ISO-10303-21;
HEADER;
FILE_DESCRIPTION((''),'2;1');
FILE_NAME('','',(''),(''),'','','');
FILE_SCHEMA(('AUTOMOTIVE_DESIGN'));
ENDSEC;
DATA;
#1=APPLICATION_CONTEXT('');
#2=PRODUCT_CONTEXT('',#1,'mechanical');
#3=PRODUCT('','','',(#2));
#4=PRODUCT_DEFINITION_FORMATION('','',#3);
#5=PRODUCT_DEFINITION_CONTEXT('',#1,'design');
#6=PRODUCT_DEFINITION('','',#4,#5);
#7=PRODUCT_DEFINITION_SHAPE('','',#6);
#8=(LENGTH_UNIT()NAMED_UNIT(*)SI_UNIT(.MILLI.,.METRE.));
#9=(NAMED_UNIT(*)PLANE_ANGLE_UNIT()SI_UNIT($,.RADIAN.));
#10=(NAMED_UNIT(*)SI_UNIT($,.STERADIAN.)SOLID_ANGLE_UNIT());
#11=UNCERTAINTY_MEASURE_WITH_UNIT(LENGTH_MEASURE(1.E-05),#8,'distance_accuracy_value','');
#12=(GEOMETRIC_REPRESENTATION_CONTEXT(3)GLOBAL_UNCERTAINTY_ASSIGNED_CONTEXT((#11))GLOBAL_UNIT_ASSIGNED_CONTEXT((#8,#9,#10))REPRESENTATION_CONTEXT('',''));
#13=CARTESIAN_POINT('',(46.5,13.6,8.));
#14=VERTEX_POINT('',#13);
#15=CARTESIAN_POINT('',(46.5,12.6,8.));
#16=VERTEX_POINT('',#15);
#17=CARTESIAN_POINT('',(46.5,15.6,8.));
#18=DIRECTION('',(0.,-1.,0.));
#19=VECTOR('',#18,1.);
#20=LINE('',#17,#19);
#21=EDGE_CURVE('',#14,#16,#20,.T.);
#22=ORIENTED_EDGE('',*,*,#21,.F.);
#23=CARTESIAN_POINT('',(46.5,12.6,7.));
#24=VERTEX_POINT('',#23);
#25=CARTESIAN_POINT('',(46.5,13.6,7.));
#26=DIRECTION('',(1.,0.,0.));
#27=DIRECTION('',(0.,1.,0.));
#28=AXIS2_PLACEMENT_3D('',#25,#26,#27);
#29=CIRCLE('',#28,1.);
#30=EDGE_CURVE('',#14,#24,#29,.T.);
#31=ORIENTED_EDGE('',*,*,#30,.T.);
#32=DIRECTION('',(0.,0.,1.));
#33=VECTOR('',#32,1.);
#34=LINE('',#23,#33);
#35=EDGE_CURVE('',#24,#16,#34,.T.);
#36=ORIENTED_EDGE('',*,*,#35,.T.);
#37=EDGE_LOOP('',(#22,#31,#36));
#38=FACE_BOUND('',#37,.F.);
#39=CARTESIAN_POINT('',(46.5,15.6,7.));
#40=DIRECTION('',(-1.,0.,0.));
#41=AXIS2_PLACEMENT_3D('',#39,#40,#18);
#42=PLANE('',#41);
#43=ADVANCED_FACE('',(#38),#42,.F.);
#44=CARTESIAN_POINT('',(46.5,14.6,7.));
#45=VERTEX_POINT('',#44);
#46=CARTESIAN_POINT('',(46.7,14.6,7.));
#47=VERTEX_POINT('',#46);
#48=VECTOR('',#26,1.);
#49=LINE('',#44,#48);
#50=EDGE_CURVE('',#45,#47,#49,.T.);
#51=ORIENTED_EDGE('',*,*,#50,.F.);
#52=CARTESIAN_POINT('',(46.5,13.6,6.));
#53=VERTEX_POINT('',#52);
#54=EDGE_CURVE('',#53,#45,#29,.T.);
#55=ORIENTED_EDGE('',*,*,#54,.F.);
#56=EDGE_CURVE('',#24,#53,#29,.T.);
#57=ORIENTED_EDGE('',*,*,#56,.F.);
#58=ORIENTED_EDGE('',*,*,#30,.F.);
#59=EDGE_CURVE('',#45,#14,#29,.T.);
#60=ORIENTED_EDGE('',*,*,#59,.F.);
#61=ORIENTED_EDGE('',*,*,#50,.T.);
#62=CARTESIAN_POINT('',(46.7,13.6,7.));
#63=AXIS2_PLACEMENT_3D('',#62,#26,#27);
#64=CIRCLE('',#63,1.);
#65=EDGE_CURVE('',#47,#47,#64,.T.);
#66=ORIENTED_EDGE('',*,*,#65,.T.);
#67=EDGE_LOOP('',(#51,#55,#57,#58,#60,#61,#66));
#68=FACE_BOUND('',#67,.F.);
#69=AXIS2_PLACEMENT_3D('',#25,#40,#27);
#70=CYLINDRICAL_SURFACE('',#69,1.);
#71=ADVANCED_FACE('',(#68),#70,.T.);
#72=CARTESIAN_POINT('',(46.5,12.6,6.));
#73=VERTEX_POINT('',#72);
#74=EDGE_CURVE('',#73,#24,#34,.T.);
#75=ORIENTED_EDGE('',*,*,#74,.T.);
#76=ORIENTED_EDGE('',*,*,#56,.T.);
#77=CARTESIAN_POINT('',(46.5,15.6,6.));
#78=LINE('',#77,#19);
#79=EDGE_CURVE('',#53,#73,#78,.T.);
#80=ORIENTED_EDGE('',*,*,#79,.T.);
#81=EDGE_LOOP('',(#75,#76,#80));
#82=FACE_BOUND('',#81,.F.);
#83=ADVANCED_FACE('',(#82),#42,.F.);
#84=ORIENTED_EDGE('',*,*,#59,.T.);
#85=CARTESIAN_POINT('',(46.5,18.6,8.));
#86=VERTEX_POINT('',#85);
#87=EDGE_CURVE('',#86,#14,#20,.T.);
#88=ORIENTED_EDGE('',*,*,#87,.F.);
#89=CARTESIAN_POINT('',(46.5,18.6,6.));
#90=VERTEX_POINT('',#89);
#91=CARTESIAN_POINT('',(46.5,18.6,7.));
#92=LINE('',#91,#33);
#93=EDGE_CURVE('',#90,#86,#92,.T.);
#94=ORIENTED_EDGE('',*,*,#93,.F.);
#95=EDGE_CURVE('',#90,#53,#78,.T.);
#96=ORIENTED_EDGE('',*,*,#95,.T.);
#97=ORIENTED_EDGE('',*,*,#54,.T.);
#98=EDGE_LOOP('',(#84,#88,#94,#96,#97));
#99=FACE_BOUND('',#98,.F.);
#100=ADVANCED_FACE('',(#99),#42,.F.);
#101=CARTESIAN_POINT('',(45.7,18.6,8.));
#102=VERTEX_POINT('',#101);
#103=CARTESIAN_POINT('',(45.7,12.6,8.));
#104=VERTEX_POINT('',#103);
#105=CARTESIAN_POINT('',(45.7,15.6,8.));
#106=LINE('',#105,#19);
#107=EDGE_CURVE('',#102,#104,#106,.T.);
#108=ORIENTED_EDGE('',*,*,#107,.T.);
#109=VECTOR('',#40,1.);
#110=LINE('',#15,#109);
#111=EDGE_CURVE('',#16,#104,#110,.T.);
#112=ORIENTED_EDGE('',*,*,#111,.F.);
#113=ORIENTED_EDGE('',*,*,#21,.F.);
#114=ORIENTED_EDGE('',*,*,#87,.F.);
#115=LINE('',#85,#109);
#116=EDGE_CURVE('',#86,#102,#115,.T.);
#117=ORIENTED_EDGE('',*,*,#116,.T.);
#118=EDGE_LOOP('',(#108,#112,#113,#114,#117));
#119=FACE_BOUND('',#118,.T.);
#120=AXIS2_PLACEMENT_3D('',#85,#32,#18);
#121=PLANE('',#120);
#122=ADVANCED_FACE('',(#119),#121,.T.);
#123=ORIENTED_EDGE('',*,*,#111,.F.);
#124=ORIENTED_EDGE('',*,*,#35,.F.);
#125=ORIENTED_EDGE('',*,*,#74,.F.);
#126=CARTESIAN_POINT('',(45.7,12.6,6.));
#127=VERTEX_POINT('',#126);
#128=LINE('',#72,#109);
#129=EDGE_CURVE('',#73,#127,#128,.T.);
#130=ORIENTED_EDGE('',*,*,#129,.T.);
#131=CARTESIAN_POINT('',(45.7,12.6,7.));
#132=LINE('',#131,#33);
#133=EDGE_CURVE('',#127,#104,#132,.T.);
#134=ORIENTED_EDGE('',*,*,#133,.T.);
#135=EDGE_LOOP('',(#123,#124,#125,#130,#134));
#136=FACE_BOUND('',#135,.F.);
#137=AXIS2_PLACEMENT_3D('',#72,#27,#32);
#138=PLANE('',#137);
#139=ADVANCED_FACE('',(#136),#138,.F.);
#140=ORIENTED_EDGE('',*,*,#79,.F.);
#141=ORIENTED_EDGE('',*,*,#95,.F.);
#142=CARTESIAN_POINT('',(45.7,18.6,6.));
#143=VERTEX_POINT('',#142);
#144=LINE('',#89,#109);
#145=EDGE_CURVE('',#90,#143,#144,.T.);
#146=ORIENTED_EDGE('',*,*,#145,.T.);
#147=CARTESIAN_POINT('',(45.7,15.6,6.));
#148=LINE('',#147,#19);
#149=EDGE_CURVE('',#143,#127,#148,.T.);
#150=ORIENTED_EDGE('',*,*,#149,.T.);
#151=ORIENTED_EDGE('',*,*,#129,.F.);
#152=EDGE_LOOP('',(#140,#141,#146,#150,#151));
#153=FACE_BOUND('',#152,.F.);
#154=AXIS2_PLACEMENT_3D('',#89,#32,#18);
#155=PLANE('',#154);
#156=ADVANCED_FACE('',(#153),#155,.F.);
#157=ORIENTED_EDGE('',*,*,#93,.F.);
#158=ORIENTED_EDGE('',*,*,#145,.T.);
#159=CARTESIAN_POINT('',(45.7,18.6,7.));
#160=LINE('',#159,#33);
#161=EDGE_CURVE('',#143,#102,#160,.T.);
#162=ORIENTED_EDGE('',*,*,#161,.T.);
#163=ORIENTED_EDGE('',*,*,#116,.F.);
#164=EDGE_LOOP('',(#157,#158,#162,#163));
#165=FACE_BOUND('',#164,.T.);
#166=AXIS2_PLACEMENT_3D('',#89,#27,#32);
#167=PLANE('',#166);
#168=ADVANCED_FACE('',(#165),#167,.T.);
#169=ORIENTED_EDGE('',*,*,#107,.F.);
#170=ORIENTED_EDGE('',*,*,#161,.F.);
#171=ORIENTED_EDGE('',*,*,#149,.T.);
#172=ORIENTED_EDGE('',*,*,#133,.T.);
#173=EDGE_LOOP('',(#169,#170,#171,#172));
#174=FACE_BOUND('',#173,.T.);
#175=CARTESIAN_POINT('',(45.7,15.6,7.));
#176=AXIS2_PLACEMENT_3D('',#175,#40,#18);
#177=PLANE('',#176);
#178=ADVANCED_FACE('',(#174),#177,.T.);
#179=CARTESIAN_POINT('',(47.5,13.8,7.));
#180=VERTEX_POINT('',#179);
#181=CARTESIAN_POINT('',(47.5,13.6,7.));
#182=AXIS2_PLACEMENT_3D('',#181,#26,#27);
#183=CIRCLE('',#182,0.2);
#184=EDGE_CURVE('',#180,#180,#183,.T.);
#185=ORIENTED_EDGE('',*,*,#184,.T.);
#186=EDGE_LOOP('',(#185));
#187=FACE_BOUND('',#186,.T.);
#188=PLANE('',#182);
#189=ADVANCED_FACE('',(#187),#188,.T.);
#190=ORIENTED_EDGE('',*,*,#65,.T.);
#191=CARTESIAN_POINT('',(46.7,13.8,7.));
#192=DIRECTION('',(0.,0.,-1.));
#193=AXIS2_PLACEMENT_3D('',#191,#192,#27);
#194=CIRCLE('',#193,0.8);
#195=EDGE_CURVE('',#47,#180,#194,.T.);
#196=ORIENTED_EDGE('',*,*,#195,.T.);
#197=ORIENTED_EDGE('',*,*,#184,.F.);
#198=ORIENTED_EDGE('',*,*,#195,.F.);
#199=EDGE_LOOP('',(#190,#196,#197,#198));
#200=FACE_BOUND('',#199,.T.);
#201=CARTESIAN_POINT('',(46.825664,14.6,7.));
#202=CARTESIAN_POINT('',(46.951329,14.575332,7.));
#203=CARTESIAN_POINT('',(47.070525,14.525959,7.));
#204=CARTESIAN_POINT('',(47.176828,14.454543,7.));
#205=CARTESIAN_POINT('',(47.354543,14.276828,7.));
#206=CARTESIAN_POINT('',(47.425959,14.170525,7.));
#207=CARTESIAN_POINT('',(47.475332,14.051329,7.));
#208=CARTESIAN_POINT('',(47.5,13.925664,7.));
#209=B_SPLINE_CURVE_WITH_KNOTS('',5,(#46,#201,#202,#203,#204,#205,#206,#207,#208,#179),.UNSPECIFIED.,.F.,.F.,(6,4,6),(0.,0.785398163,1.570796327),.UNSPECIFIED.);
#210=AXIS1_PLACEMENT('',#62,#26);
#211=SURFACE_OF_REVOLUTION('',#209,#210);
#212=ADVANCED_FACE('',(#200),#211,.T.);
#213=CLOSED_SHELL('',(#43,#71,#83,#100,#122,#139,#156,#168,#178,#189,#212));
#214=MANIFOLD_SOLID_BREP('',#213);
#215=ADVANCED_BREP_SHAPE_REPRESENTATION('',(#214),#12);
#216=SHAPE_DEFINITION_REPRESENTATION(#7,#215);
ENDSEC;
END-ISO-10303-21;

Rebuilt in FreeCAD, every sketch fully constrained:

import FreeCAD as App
import Part
import Sketcher


def edges_at(feature, points):
    """Names of the edges that pass closest to the given points."""
    edges = feature.Shape.Edges
    near = lambda p: min(range(len(edges)), key=lambda i: edges[i].distToShape(Part.Vertex(*p))[0])
    return sorted({f"Edge{near(p) + 1}" for p in points})


def add_polygon(sketch, points):
    """Adds a closed chain of lines whose ends are joined by coincident constraints."""
    first, n = sketch.GeometryCount, len(points)
    for a, b in zip(points, points[1:] + points[:1]):
        sketch.addGeometry(Part.LineSegment(App.Vector(*a, 0), App.Vector(*b, 0)), False)
    for i in range(n):
        sketch.addConstraint(Sketcher.Constraint("Coincident", first + i, 2, first + (i + 1) % n, 1))

doc = App.newDocument("Part")
params = doc.addObject("Spreadsheet::Sheet", "Params")
for row, (alias, value) in enumerate([
    ("sketch1_width", "6 mm"),
    ("sketch1_height", "2 mm"),
    ("pad1_length", "0.8 mm"),
    ("sketch2_diameter", "2 mm"),
    ("pad2_length", "1 mm"),
    ("fillet_radius", "0.8 mm"),
], start=1):
    params.set(f"A{row}", alias)
    params.set(f"B{row}", "=" + value)
    params.setAlias(f"B{row}", alias)

body = doc.addObject("PartDesign::Body", "Body")

sketch1 = body.newObject("Sketcher::SketchObject", "Sketch")
sketch1.AttachmentSupport = (doc.getObject("YZ_Plane"), [""])
sketch1.MapMode = "FlatFace"
sketch1.AttachmentOffset = App.Placement(App.Vector(0, 0, -3), App.Rotation())
add_polygon(sketch1, [(16, 12), (16, 14), (10, 14), (10, 12)])
sketch1.addConstraint([
    Sketcher.Constraint("Vertical", 0),
    Sketcher.Constraint("Horizontal", 1),
    Sketcher.Constraint("Vertical", 2),
    Sketcher.Constraint("Horizontal", 3),
    Sketcher.Constraint("DistanceX", 1, 2, 1, 1, 6.0),
    Sketcher.Constraint("DistanceY", 0, 1, 0, 2, 2.0),
    Sketcher.Constraint("DistanceX", -1, 1, 0, 2, 16.0),
    Sketcher.Constraint("DistanceY", -1, 1, 0, 2, 14.0),
])
sketch1.setExpression("Constraints[8]", "Params.sketch1_width")
sketch1.setExpression("Constraints[9]", "Params.sketch1_height")
pad1 = body.newObject("PartDesign::Pad", "Pad")
pad1.Profile = sketch1
pad1.setExpression("Length", "Params.pad1_length")

sketch2 = body.newObject("Sketcher::SketchObject", "Sketch001")
sketch2.AttachmentSupport = (doc.getObject("YZ_Plane"), [""])
sketch2.MapMode = "FlatFace"
sketch2.AttachmentOffset = App.Placement(App.Vector(0, 0, -3), App.Rotation())
sketch2.addGeometry(Part.Circle(App.Vector(11, 13, 0), App.Vector(0, 0, 1), 1), False)
sketch2.addConstraint([
    Sketcher.Constraint("Diameter", 0, 2.0),
    Sketcher.Constraint("DistanceX", -1, 1, 0, 3, 11.0),
    Sketcher.Constraint("DistanceY", -1, 1, 0, 3, 13.0),
])
sketch2.setExpression("Constraints[0]", "Params.sketch2_diameter")
pad2 = body.newObject("PartDesign::Pad", "Pad001")
pad2.Profile = sketch2
pad2.setExpression("Length", "Params.pad2_length")
pad2.Reversed = True
doc.recompute()

fillet = body.newObject("PartDesign::Fillet", "Fillet")
fillet.Base = (pad2, edges_at(pad2, [(-4, 10, 13)]))
fillet.setExpression("Radius", "Params.fillet_radius")
body2 = doc.addObject("PartDesign::Body", "Body001")
doc.recompute()

body.Placement = App.Placement(App.Vector(-16, 0, 0), App.Rotation(App.Vector(0, 0, 1), 0))
boolean = body2.newObject("PartDesign::Boolean", "Boolean")
boolean.Type = "Fuse"
boolean.addObjects([body])
body3 = doc.addObject("PartDesign::Body", "Body002")
doc.recompute()

body2.Placement = App.Placement(App.Vector(27.5, 2.6, 20), App.Rotation(App.Vector(0, 1, 0), 180))
boolean2 = body3.newObject("PartDesign::Boolean", "Boolean001")
boolean2.Type = "Fuse"
boolean2.addObjects([body2])

doc.recompute()
